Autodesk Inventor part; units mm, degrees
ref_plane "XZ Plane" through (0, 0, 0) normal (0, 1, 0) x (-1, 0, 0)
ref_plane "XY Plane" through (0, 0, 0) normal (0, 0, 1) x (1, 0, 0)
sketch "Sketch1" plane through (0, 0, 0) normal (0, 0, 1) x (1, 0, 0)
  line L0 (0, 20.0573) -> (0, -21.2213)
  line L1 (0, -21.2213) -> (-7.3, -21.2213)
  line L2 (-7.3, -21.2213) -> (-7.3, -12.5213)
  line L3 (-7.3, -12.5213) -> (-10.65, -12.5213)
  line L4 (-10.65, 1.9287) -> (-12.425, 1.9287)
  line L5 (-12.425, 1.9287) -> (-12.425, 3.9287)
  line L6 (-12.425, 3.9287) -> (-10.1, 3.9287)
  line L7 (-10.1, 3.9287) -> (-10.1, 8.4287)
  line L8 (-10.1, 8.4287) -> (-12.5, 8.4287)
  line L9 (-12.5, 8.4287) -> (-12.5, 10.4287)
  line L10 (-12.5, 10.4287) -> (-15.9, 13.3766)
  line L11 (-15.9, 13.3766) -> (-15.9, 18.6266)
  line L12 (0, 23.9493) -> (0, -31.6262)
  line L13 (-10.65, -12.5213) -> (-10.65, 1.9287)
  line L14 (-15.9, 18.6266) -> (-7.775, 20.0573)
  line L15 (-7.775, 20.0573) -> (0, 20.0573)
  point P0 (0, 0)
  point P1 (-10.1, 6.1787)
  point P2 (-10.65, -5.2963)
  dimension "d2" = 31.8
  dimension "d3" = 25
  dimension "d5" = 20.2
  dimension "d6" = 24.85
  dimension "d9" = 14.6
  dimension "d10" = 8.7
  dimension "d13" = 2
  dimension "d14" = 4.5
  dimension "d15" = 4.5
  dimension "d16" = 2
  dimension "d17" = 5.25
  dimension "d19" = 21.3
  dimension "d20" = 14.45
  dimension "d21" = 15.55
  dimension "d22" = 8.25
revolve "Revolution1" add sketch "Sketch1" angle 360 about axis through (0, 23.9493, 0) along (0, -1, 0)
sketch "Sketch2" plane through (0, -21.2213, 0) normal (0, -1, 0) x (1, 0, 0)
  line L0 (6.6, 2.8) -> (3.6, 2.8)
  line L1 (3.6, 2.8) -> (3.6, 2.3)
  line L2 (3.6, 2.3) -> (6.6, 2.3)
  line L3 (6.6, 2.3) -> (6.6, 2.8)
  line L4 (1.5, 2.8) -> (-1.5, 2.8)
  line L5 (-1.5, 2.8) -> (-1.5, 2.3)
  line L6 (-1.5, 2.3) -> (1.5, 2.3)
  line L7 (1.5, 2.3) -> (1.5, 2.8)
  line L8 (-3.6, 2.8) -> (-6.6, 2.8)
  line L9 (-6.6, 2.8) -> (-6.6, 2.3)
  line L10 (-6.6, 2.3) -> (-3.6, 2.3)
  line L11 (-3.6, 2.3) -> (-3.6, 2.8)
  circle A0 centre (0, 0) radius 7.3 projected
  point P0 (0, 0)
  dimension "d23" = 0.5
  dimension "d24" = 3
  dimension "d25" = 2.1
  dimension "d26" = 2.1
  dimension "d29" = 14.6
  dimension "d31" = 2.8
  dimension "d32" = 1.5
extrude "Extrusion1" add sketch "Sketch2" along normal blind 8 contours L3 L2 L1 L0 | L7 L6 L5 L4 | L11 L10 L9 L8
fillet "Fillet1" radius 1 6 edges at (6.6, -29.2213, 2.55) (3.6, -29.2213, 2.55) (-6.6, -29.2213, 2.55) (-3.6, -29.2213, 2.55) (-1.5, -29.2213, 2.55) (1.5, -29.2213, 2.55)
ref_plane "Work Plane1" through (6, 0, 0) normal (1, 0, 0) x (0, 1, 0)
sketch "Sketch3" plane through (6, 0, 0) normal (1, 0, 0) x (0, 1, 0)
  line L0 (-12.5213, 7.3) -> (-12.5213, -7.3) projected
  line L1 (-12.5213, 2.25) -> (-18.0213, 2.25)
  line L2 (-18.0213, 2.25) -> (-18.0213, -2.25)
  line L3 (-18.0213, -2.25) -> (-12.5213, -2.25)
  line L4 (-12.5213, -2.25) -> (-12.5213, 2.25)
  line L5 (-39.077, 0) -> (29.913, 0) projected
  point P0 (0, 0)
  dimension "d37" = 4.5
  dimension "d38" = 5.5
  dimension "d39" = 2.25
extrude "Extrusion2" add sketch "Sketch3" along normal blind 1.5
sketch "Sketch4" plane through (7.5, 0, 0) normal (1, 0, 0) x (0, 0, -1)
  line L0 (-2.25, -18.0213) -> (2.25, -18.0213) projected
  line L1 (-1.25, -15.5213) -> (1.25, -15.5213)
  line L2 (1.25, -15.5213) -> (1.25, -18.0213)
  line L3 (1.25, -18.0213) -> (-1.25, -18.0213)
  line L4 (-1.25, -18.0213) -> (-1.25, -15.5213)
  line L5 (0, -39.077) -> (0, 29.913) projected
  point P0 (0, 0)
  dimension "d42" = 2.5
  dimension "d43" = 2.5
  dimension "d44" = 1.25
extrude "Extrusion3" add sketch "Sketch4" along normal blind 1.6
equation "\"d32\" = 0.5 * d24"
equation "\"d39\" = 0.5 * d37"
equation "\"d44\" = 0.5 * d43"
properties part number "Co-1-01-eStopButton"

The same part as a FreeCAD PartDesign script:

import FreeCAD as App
import Part
import Sketcher
Q = App.Units.Quantity


def edges_at(feature, points):
    """Names of the edges that pass closest to the given points."""
    edges = feature.Shape.Edges
    near = lambda p: min(range(len(edges)), key=lambda i: edges[i].distToShape(Part.Vertex(*p))[0])
    return sorted({f"Edge{near(p) + 1}" for p in points})

doc = App.newDocument("Part")
body = doc.addObject("PartDesign::Body", "Body")

# Sketch on XY plane
sketch1 = body.newObject("Sketcher::SketchObject", "Sketch")
sketch1.AttachmentSupport = (doc.getObject("XY_Plane"), [""])
sketch1.MapMode = "FlatFace"
sketch1.addGeometry([
    Part.LineSegment(App.Vector(0, -21.2, 0), App.Vector(0, 20.1, 0)),  # 0
    Part.LineSegment(App.Vector(0, 20.1, 0), App.Vector(-7.8, 20.1, 0)),  # 1
    Part.LineSegment(App.Vector(-7.8, 20.1, 0), App.Vector(-15.9, 18.6, 0)),  # 2
    Part.LineSegment(App.Vector(-15.9, 18.6, 0), App.Vector(-15.9, 13.4, 0)),  # 3
    Part.LineSegment(App.Vector(-15.9, 13.4, 0), App.Vector(-12.5, 10.4, 0)),  # 4
    Part.LineSegment(App.Vector(-12.5, 10.4, 0), App.Vector(-12.5, 8.4, 0)),  # 5
    Part.LineSegment(App.Vector(-12.5, 8.4, 0), App.Vector(-10.1, 8.4, 0)),  # 6
    Part.LineSegment(App.Vector(-10.1, 8.4, 0), App.Vector(-10.1, 3.9, 0)),  # 7
    Part.LineSegment(App.Vector(-10.1, 3.9, 0), App.Vector(-12.4, 3.9, 0)),  # 8
    Part.LineSegment(App.Vector(-12.4, 3.9, 0), App.Vector(-12.4, 1.9, 0)),  # 9
    Part.LineSegment(App.Vector(-12.4, 1.9, 0), App.Vector(-10.7, 1.9, 0)),  # 10
    Part.LineSegment(App.Vector(-10.7, 1.9, 0), App.Vector(-10.7, -12.5, 0)),  # 11
    Part.LineSegment(App.Vector(-10.7, -12.5, 0), App.Vector(-7.3, -12.5, 0)),  # 12
    Part.LineSegment(App.Vector(-7.3, -12.5, 0), App.Vector(-7.3, -21.2, 0)),  # 13
    Part.LineSegment(App.Vector(-7.3, -21.2, 0), App.Vector(0, -21.2, 0)),  # 14
], False)
sketch1.addConstraint([
    Sketcher.Constraint("Coincident", 0, 2, 1, 1),
    Sketcher.Constraint("Coincident", 1, 2, 2, 1),
    Sketcher.Constraint("Coincident", 2, 2, 3, 1),
    Sketcher.Constraint("Coincident", 3, 2, 4, 1),
    Sketcher.Constraint("Coincident", 4, 2, 5, 1),
    Sketcher.Constraint("Coincident", 5, 2, 6, 1),
    Sketcher.Constraint("Coincident", 6, 2, 7, 1),
    Sketcher.Constraint("Coincident", 7, 2, 8, 1),
    Sketcher.Constraint("Coincident", 8, 2, 9, 1),
    Sketcher.Constraint("Coincident", 9, 2, 10, 1),
    Sketcher.Constraint("Coincident", 10, 2, 11, 1),
    Sketcher.Constraint("Coincident", 11, 2, 12, 1),
    Sketcher.Constraint("Coincident", 12, 2, 13, 1),
    Sketcher.Constraint("Coincident", 13, 2, 14, 1),
    Sketcher.Constraint("Coincident", 14, 2, 0, 1),
    Sketcher.Constraint("Vertical", 0),
    Sketcher.Constraint("Horizontal", 1),
    Sketcher.Constraint("Vertical", 3),
    Sketcher.Constraint("Vertical", 5),
    Sketcher.Constraint("Horizontal", 6),
    Sketcher.Constraint("Vertical", 7),
    Sketcher.Constraint("Horizontal", 8),
    Sketcher.Constraint("Vertical", 9),
    Sketcher.Constraint("Horizontal", 10),
    Sketcher.Constraint("Vertical", 11),
    Sketcher.Constraint("Horizontal", 12),
    Sketcher.Constraint("Vertical", 13),
    Sketcher.Constraint("Horizontal", 14),
    Sketcher.Constraint("PointOnObject", 0, 2, -2),
    Sketcher.Constraint("Equal", 5, 9),
    Sketcher.Constraint("DistanceY", 5, 2, 5, 1, Q("2 mm")),
    Sketcher.Constraint("DistanceY", 7, 2, 7, 1, Q("4.5 mm")),
    Sketcher.Constraint("DistanceY", 13, 2, 13, 1, Q("8.7 mm")),
    Sketcher.Constraint("Distance", 4, Q("4.5 mm")),
    Sketcher.Constraint("DistanceY", 3, 2, 3, 1, Q("5.25 mm")),
    Sketcher.Constraint("DistanceY", 11, 2, 11, 1, Q("14.45 mm")),
    Sketcher.Constraint("Distance", 2, Q("8.25 mm")),
    Sketcher.Constraint("DistanceX", 6, 1, 6, 2, Q("2.4 mm")),
    Sketcher.Constraint("DistanceX", 14, 1, 14, 2, Q("7.3 mm")),
    Sketcher.Constraint("DistanceX", 12, 1, 12, 2, Q("3.35 mm")),
    Sketcher.Constraint("DistanceX", 2, 2, -1, 1, Q("15.9 mm")),
    Sketcher.Constraint("DistanceX", 4, 2, -1, 1, Q("12.5 mm")),
    Sketcher.Constraint("DistanceX", 1, 2, 1, 1, Q("7.775 mm")),
    Sketcher.Constraint("DistanceX", 8, 2, 8, 1, Q("2.325 mm")),
    Sketcher.Constraint("DistanceY", -1, 1, 0, 2, Q("20.0573 mm")),
])
revolution = body.newObject("PartDesign::Revolution", "Revolution")
revolution.Profile = sketch1
revolution.ReferenceAxis = (sketch1, ["V_Axis"])
revolution.Angle = 360

# Sketch on XZ plane
sketch2 = body.newObject("Sketcher::SketchObject", "Sketch001")
sketch2.AttachmentSupport = (doc.getObject("XZ_Plane"), [""])
sketch2.MapMode = "FlatFace"
sketch2.AttachmentOffset = App.Placement(App.Vector(0, 0, 21.2213), App.Rotation())
sketch2.addGeometry([
    Part.LineSegment(App.Vector(6.6, 2.3, 0), App.Vector(6.6, 2.8, 0)),  # 0
    Part.LineSegment(App.Vector(6.6, 2.8, 0), App.Vector(3.6, 2.8, 0)),  # 1
    Part.LineSegment(App.Vector(3.6, 2.8, 0), App.Vector(3.6, 2.3, 0)),  # 2
    Part.LineSegment(App.Vector(3.6, 2.3, 0), App.Vector(6.6, 2.3, 0)),  # 3
    Part.LineSegment(App.Vector(1.5, 2.3, 0), App.Vector(1.5, 2.8, 0)),  # 4
    Part.LineSegment(App.Vector(1.5, 2.8, 0), App.Vector(-1.5, 2.8, 0)),  # 5
    Part.LineSegment(App.Vector(-1.5, 2.8, 0), App.Vector(-1.5, 2.3, 0)),  # 6
    Part.LineSegment(App.Vector(-1.5, 2.3, 0), App.Vector(1.5, 2.3, 0)),  # 7
    Part.LineSegment(App.Vector(-3.6, 2.3, 0), App.Vector(-3.6, 2.8, 0)),  # 8
    Part.LineSegment(App.Vector(-3.6, 2.8, 0), App.Vector(-6.6, 2.8, 0)),  # 9
    Part.LineSegment(App.Vector(-6.6, 2.8, 0), App.Vector(-6.6, 2.3, 0)),  # 10
    Part.LineSegment(App.Vector(-6.6, 2.3, 0), App.Vector(-3.6, 2.3, 0)),  # 11
], False)
sketch2.addConstraint([
    Sketcher.Constraint("Coincident", 0, 2, 1, 1),
    Sketcher.Constraint("Coincident", 1, 2, 2, 1),
    Sketcher.Constraint("Coincident", 2, 2, 3, 1),
    Sketcher.Constraint("Coincident", 3, 2, 0, 1),
    Sketcher.Constraint("Coincident", 4, 2, 5, 1),
    Sketcher.Constraint("Coincident", 5, 2, 6, 1),
    Sketcher.Constraint("Coincident", 6, 2, 7, 1),
    Sketcher.Constraint("Coincident", 7, 2, 4, 1),
    Sketcher.Constraint("Coincident", 8, 2, 9, 1),
    Sketcher.Constraint("Coincident", 9, 2, 10, 1),
    Sketcher.Constraint("Coincident", 10, 2, 11, 1),
    Sketcher.Constraint("Coincident", 11, 2, 8, 1),
    Sketcher.Constraint("Vertical", 0),
    Sketcher.Constraint("Horizontal", 1),
    Sketcher.Constraint("Vertical", 2),
    Sketcher.Constraint("Horizontal", 3),
    Sketcher.Constraint("Vertical", 4),
    Sketcher.Constraint("Horizontal", 5),
    Sketcher.Constraint("Vertical", 6),
    Sketcher.Constraint("Horizontal", 7),
    Sketcher.Constraint("Vertical", 8),
    Sketcher.Constraint("Horizontal", 9),
    Sketcher.Constraint("Vertical", 10),
    Sketcher.Constraint("Horizontal", 11),
    Sketcher.Constraint("Symmetric", 1, 2, 8, 2, -2),
    Sketcher.Constraint("Symmetric", 3, 2, 10, 2, -2),
    Sketcher.Constraint("Horizontal", 1, 2, 4, 2),
    Sketcher.Constraint("Horizontal", 3, 2, 6, 2),
    Sketcher.Constraint("Equal", 3, 5),
    Sketcher.Constraint("DistanceX", 1, 2, 1, 1, Q("3 mm")),
    Sketcher.Constraint("DistanceY", 0, 1, 0, 2, Q("0.5 mm")),
    Sketcher.Constraint("DistanceY", -1, 1, 0, 2, Q("2.8 mm")),
    Sketcher.Constraint("DistanceX", -1, 1, 4, 2, Q("1.5 mm")),
    Sketcher.Constraint("DistanceX", 4, 2, 1, 2, Q("2.1 mm")),
])
pad1 = body.newObject("PartDesign::Pad", "Pad")
pad1.Profile = sketch2
pad1.Length = 8
doc.recompute()

fillet = body.newObject("PartDesign::Fillet", "Fillet")
fillet.Base = (pad1, edges_at(pad1, [
    (6.6, -29.221, 2.55),
    (3.6, -29.221, 2.55),
    (-6.6, -29.221, 2.55),
    (-3.6, -29.221, 2.55),
    (-1.5, -29.221, 2.55),
    (1.5, -29.221, 2.55),
]))
fillet.Radius = 1

# Sketch on YZ plane
sketch3 = body.newObject("Sketcher::SketchObject", "Sketch002")
sketch3.AttachmentSupport = (doc.getObject("YZ_Plane"), [""])
sketch3.MapMode = "FlatFace"
sketch3.AttachmentOffset = App.Placement(App.Vector(0, 0, 6), App.Rotation())
sketch3.addGeometry([
    Part.LineSegment(App.Vector(-12.5, 2.2, 0), App.Vector(-18, 2.2, 0)),
    Part.LineSegment(App.Vector(-18, 2.2, 0), App.Vector(-18, -2.2, 0)),
    Part.LineSegment(App.Vector(-18, -2.2, 0), App.Vector(-12.5, -2.2, 0)),
    Part.LineSegment(App.Vector(-12.5, -2.2, 0), App.Vector(-12.5, 2.2, 0)),
], False)
sketch3.addConstraint([
    Sketcher.Constraint("Coincident", 0, 2, 1, 1),
    Sketcher.Constraint("Coincident", 1, 2, 2, 1),
    Sketcher.Constraint("Coincident", 2, 2, 3, 1),
    Sketcher.Constraint("Coincident", 3, 2, 0, 1),
    Sketcher.Constraint("Horizontal", 0),
    Sketcher.Constraint("Vertical", 1),
    Sketcher.Constraint("Horizontal", 2),
    Sketcher.Constraint("Vertical", 3),
    Sketcher.Constraint("DistanceX", 0, 2, 0, 1, Q("5.5 mm")),
    Sketcher.Constraint("DistanceY", 1, 2, 1, 1, Q("4.5 mm")),
    Sketcher.Constraint("DistanceY", -1, 1, 0, 2, Q("2.25 mm")),
    Sketcher.Constraint("DistanceX", 0, 2, -1, 1, Q("18.0213 mm")),
])
pad2 = body.newObject("PartDesign::Pad", "Pad001")
pad2.Profile = sketch3
pad2.Length = 1.5

# Sketch on YZ plane
sketch4 = body.newObject("Sketcher::SketchObject", "Sketch003")
sketch4.AttachmentSupport = (doc.getObject("YZ_Plane"), [""])
sketch4.MapMode = "FlatFace"
sketch4.AttachmentOffset = App.Placement(App.Vector(0, 0, 7.5), App.Rotation())
sketch4.addGeometry([
    Part.LineSegment(App.Vector(-15.5, 1.2, 0), App.Vector(-18, 1.2, 0)),
    Part.LineSegment(App.Vector(-18, 1.2, 0), App.Vector(-18, -1.2, 0)),
    Part.LineSegment(App.Vector(-18, -1.2, 0), App.Vector(-15.5, -1.2, 0)),
    Part.LineSegment(App.Vector(-15.5, -1.2, 0), App.Vector(-15.5, 1.2, 0)),
], False)
sketch4.addConstraint([
    Sketcher.Constraint("Coincident", 0, 2, 1, 1),
    Sketcher.Constraint("Coincident", 1, 2, 2, 1),
    Sketcher.Constraint("Coincident", 2, 2, 3, 1),
    Sketcher.Constraint("Coincident", 3, 2, 0, 1),
    Sketcher.Constraint("Horizontal", 0),
    Sketcher.Constraint("Vertical", 1),
    Sketcher.Constraint("Horizontal", 2),
    Sketcher.Constraint("Vertical", 3),
    Sketcher.Constraint("Equal", 2, 1),
    Sketcher.Constraint("DistanceX", 0, 2, 0, 1, Q("2.5 mm")),
    Sketcher.Constraint("DistanceY", -1, 1, 0, 2, Q("1.25 mm")),
    Sketcher.Constraint("DistanceX", 0, 2, -1, 1, Q("18.0213 mm")),
])
pad3 = body.newObject("PartDesign::Pad", "Pad002")
pad3.Profile = sketch4
pad3.Length = 1.6

doc.recompute()
